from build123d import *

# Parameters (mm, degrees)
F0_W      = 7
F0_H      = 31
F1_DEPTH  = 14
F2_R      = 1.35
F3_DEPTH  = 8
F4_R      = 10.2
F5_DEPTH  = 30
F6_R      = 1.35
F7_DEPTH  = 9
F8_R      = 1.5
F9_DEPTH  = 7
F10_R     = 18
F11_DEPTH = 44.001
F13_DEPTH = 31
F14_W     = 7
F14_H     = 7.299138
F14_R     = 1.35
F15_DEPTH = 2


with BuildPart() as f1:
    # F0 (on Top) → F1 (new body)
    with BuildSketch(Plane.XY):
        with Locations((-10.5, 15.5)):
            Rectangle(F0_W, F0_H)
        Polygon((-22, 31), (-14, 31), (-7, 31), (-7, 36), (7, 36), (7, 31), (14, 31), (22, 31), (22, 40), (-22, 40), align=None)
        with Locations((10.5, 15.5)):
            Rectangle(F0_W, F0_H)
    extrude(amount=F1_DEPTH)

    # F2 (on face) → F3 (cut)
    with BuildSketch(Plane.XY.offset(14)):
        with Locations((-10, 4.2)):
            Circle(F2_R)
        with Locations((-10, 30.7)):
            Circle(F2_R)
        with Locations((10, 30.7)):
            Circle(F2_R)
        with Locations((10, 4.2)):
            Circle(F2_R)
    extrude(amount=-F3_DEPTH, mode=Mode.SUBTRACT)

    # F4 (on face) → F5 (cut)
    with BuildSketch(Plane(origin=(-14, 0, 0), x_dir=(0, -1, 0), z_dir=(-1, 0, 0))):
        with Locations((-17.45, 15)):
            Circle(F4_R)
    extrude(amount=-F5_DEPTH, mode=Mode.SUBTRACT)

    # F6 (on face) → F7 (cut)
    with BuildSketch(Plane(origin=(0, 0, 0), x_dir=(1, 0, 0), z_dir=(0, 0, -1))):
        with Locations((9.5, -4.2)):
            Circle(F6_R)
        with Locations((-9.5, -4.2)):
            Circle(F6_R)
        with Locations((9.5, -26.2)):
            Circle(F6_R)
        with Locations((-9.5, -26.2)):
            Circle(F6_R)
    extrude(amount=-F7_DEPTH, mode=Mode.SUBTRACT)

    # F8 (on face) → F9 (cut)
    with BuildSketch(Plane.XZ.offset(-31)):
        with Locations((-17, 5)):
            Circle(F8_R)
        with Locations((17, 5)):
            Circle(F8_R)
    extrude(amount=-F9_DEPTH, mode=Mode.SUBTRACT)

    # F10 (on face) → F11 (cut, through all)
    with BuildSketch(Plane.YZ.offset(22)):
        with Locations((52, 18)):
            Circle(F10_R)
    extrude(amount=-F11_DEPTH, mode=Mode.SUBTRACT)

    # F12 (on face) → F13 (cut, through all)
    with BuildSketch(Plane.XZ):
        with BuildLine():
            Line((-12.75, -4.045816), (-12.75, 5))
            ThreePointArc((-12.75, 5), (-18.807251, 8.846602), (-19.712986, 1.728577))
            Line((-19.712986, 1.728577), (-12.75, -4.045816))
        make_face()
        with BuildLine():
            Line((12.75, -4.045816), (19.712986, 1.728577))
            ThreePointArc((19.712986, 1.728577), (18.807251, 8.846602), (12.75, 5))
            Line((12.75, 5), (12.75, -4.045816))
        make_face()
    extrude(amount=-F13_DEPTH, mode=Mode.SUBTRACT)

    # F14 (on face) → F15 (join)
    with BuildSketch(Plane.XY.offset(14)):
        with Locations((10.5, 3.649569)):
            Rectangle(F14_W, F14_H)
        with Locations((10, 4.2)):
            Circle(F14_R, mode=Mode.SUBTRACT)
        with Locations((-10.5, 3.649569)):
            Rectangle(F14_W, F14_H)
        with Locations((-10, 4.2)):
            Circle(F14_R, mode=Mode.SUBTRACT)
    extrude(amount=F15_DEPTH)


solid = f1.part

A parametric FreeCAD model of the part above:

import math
import FreeCAD as App
import Part
import Sketcher
Q = App.Units.Quantity


def add_polygon(sketch, points):
    """Adds a closed chain of lines whose ends are joined by coincident constraints."""
    first, n = sketch.GeometryCount, len(points)
    for a, b in zip(points, points[1:] + points[:1]):
        sketch.addGeometry(Part.LineSegment(App.Vector(*a, 0), App.Vector(*b, 0)), False)
    for i in range(n):
        sketch.addConstraint(Sketcher.Constraint("Coincident", first + i, 2, first + (i + 1) % n, 1))

doc = App.newDocument("Part")
body = doc.addObject("PartDesign::Body", "Body")

# Sketch on XY plane
sketch1 = body.newObject("Sketcher::SketchObject", "Sketch")
sketch1.AttachmentSupport = (doc.getObject("XY_Plane"), [""])
sketch1.MapMode = "FlatFace"
add_polygon(sketch1, [(-14, 31), (-14, 0), (-7, 0), (-7, 36), (7, 36), (7, 0), (14, 0), (14, 31), (22, 31), (22, 40), (-22, 40), (-22, 31)])  # lines 0-11
sketch1.addConstraint([
    Sketcher.Constraint("Vertical", 0),
    Sketcher.Constraint("Horizontal", 1),
    Sketcher.Constraint("Vertical", 2),
    Sketcher.Constraint("Horizontal", 3),
    Sketcher.Constraint("Vertical", 4),
    Sketcher.Constraint("Horizontal", 5),
    Sketcher.Constraint("Vertical", 6),
    Sketcher.Constraint("Horizontal", 7),
    Sketcher.Constraint("Vertical", 8),
    Sketcher.Constraint("Horizontal", 9),
    Sketcher.Constraint("Vertical", 10),
    Sketcher.Constraint("Horizontal", 11),
    Sketcher.Constraint("Symmetric", 1, 2, 4, 2, -1, 1),
    Sketcher.Constraint("Symmetric", 0, 2, 5, 2, -2),
    Sketcher.Constraint("Symmetric", 7, 2, 10, 2, -2),
    Sketcher.Constraint("DistanceX", 1, 1, 1, 2, Q("7 mm")),
    Sketcher.Constraint("DistanceX", 3, 1, 3, 2, Q("14 mm")),
    Sketcher.Constraint("DistanceX", 7, 1, 7, 2, Q("8 mm")),
    Sketcher.Constraint("DistanceY", 0, 2, 0, 1, Q("31 mm")),
    Sketcher.Constraint("DistanceY", 2, 1, 2, 2, Q("36 mm")),
    Sketcher.Constraint("DistanceY", 8, 1, 8, 2, Q("9 mm")),
])
pad1 = body.newObject("PartDesign::Pad", "Pad")
pad1.Profile = sketch1
pad1.Length = 14

# Sketch on XY plane
sketch2 = body.newObject("Sketcher::SketchObject", "Sketch001")
sketch2.AttachmentSupport = (doc.getObject("XY_Plane"), [""])
sketch2.MapMode = "FlatFace"
sketch2.AttachmentOffset = App.Placement(App.Vector(0, 0, 14), App.Rotation())
sketch2.addGeometry([
    Part.Circle(App.Vector(-10, 4.2, 0), App.Vector(0, 0, 1), 1.4),
    Part.Circle(App.Vector(-10, 30.7, 0), App.Vector(0, 0, 1), 1.4),
    Part.Circle(App.Vector(10, 30.7, 0), App.Vector(0, 0, 1), 1.4),
    Part.Circle(App.Vector(10, 4.2, 0), App.Vector(0, 0, 1), 1.4),
], False)
sketch2.addConstraint([
    Sketcher.Constraint("Equal", 0, 1),
    Sketcher.Constraint("Equal", 1, 2),
    Sketcher.Constraint("Equal", 2, 3),
    Sketcher.Constraint("Symmetric", 1, 3, 2, 3, -2),
    Sketcher.Constraint("Symmetric", 0, 3, 3, 3, -2),
    Sketcher.Constraint("Vertical", 0, 3, 1, 3),
    Sketcher.Constraint("Diameter", 0, Q("2.7 mm")),
    Sketcher.Constraint("DistanceX", 0, 3, -1, 1, Q("10 mm")),
    Sketcher.Constraint("DistanceY", -1, 1, 0, 3, Q("4.2 mm")),
    Sketcher.Constraint("DistanceY", -1, 1, 1, 3, Q("30.7 mm")),
])
pocket1 = body.newObject("PartDesign::Pocket", "Pocket")
pocket1.Profile = sketch2
pocket1.Length = 8

# Sketch on YZ plane
sketch3 = body.newObject("Sketcher::SketchObject", "Sketch002")
sketch3.AttachmentSupport = (doc.getObject("YZ_Plane"), [""])
sketch3.MapMode = "FlatFace"
sketch3.AttachmentOffset = App.Placement(App.Vector(0, 0, -14), App.Rotation())
sketch3.addGeometry(Part.Circle(App.Vector(17, 15, 0), App.Vector(0, 0, 1), 10), False)
sketch3.addConstraint([
    Sketcher.Constraint("Diameter", 0, Q("20.4 mm")),
    Sketcher.Constraint("DistanceY", -1, 1, 0, 3, Q("15 mm")),
    Sketcher.Constraint("DistanceX", -1, 1, 0, 3, Q("17.45 mm")),
])
pocket2 = body.newObject("PartDesign::Pocket", "Pocket001")
pocket2.Profile = sketch3
pocket2.Length = 30
pocket2.Reversed = True

# Sketch on XY plane
sketch4 = body.newObject("Sketcher::SketchObject", "Sketch003")
sketch4.AttachmentSupport = (doc.getObject("XY_Plane"), [""])
sketch4.MapMode = "FlatFace"
sketch4.addGeometry([
    Part.Circle(App.Vector(9.5, 4.2, 0), App.Vector(0, 0, 1), 1.4),
    Part.Circle(App.Vector(-9.5, 4.2, 0), App.Vector(0, 0, 1), 1.4),
    Part.Circle(App.Vector(9.5, 26.2, 0), App.Vector(0, 0, 1), 1.4),
    Part.Circle(App.Vector(-9.5, 26.2, 0), App.Vector(0, 0, 1), 1.4),
], False)
sketch4.addConstraint([
    Sketcher.Constraint("Equal", 0, 1),
    Sketcher.Constraint("Equal", 1, 2),
    Sketcher.Constraint("Equal", 2, 3),
    Sketcher.Constraint("Symmetric", 0, 3, 1, 3, -2),
    Sketcher.Constraint("Symmetric", 2, 3, 3, 3, -2),
    Sketcher.Constraint("Vertical", 0, 3, 2, 3),
    Sketcher.Constraint("Diameter", 0, Q("2.7 mm")),
    Sketcher.Constraint("DistanceX", 1, 3, 0, 3, Q("19 mm")),
    Sketcher.Constraint("DistanceY", 0, 3, 2, 3, Q("22 mm")),
    Sketcher.Constraint("DistanceY", -1, 1, 0, 3, Q("4.2 mm")),
])
pocket3 = body.newObject("PartDesign::Pocket", "Pocket002")
pocket3.Profile = sketch4
pocket3.Length = 9
pocket3.Reversed = True

# Sketch on XZ plane
sketch5 = body.newObject("Sketcher::SketchObject", "Sketch004")
sketch5.AttachmentSupport = (doc.getObject("XZ_Plane"), [""])
sketch5.MapMode = "FlatFace"
sketch5.AttachmentOffset = App.Placement(App.Vector(0, 0, -31), App.Rotation())
sketch5.addGeometry([
    Part.Circle(App.Vector(-17, 5, 0), App.Vector(0, 0, 1), 1.5),
    Part.Circle(App.Vector(17, 5, 0), App.Vector(0, 0, 1), 1.5),
], False)
sketch5.addConstraint([
    Sketcher.Constraint("Equal", 0, 1),
    Sketcher.Constraint("Symmetric", 0, 3, 1, 3, -2),
    Sketcher.Constraint("Diameter", 0, Q("3 mm")),
    Sketcher.Constraint("DistanceX", 0, 3, -1, 1, Q("17 mm")),
    Sketcher.Constraint("DistanceY", -1, 1, 0, 3, Q("5 mm")),
])
pocket4 = body.newObject("PartDesign::Pocket", "Pocket003")
pocket4.Profile = sketch5
pocket4.Length = 7

# Sketch on YZ plane
sketch6 = body.newObject("Sketcher::SketchObject", "Sketch005")
sketch6.AttachmentSupport = (doc.getObject("YZ_Plane"), [""])
sketch6.MapMode = "FlatFace"
sketch6.AttachmentOffset = App.Placement(App.Vector(0, 0, 22), App.Rotation())
sketch6.addGeometry(Part.Circle(App.Vector(52, 18, 0), App.Vector(0, 0, 1), 18), False)
sketch6.addConstraint([
    Sketcher.Constraint("Diameter", 0, Q("36 mm")),
    Sketcher.Constraint("DistanceX", -1, 1, 0, 3, Q("52 mm")),
    Sketcher.Constraint("DistanceY", -1, 1, 0, 3, Q("18 mm")),
])
pocket5 = body.newObject("PartDesign::Pocket", "Pocket004")
pocket5.Profile = sketch6
pocket5.Type = "ThroughAll"

# Sketch on XZ plane
sketch7 = body.newObject("Sketcher::SketchObject", "Sketch006")
sketch7.AttachmentSupport = (doc.getObject("XZ_Plane"), [""])
sketch7.MapMode = "FlatFace"
sketch7.addGeometry([
    Part.LineSegment(App.Vector(-12.8, -4, 0), App.Vector(-12.8, 5, 0)),  # 0
    Part.ArcOfCircle(Part.Circle(App.Vector(-17, 5, 0), App.Vector(0, 0, 1), 4.3), math.radians(0), math.radians(230)),  # 1
    Part.LineSegment(App.Vector(-19.7, 1.7, 0), App.Vector(-12.8, -4, 0)),  # 2
    Part.LineSegment(App.Vector(12.8, -4, 0), App.Vector(19.7, 1.7, 0)),  # 3
    Part.ArcOfCircle(Part.Circle(App.Vector(17, 5, 0), App.Vector(0, 0, 1), 4.3), math.radians(-50), math.radians(180)),  # 4
    Part.LineSegment(App.Vector(12.8, 5, 0), App.Vector(12.8, -4, 0)),  # 5
], False)
sketch7.addConstraint([
    Sketcher.Constraint("Tangent", 0, 2, 1, 1),
    Sketcher.Constraint("Tangent", 1, 2, 2, 1),
    Sketcher.Constraint("Coincident", 2, 2, 0, 1),
    Sketcher.Constraint("Tangent", 3, 2, 4, 1),
    Sketcher.Constraint("Tangent", 4, 2, 5, 1),
    Sketcher.Constraint("Coincident", 5, 2, 3, 1),
    Sketcher.Constraint("Vertical", 0),
    Sketcher.Constraint("Vertical", 5),
    Sketcher.Constraint("Equal", 1, 4),
    Sketcher.Constraint("Symmetric", 1, 3, 4, 3, -2),
    Sketcher.Constraint("Horizontal", 1, 2, 3, 2),
    Sketcher.Constraint("Radius", 1, Q("4.25 mm")),
    Sketcher.Constraint("DistanceX", 1, 3, -1, 1, Q("17 mm")),
    Sketcher.Constraint("DistanceY", -1, 1, 1, 3, Q("5 mm")),
    Sketcher.Constraint("DistanceY", 0, 1, 0, 2, Q("9.045816 mm")),
])
pocket6 = body.newObject("PartDesign::Pocket", "Pocket005")
pocket6.Profile = sketch7
pocket6.Length = 31

# Sketch on XY plane
sketch8 = body.newObject("Sketcher::SketchObject", "Sketch007")
sketch8.AttachmentSupport = (doc.getObject("XY_Plane"), [""])
sketch8.MapMode = "FlatFace"
sketch8.AttachmentOffset = App.Placement(App.Vector(0, 0, 14), App.Rotation())
add_polygon(sketch8, [(7, 7.3), (7, 0), (14, 0), (14, 7.3)])  # lines 0-3
sketch8.addGeometry(Part.Circle(App.Vector(10, 4.2, 0), App.Vector(0, 0, 1), 1.4), False)  # 4
add_polygon(sketch8, [(-14, 7.3), (-14, 0), (-7, 0), (-7, 7.3)])  # lines 5-8
sketch8.addGeometry(Part.Circle(App.Vector(-10, 4.2, 0), App.Vector(0, 0, 1), 1.4), False)  # 9
sketch8.addConstraint([
    Sketcher.Constraint("Vertical", 0),
    Sketcher.Constraint("Horizontal", 1),
    Sketcher.Constraint("Vertical", 2),
    Sketcher.Constraint("Horizontal", 3),
    Sketcher.Constraint("Vertical", 5),
    Sketcher.Constraint("Horizontal", 6),
    Sketcher.Constraint("Vertical", 7),
    Sketcher.Constraint("Horizontal", 8),
    Sketcher.Constraint("Equal", 4, 9),
    Sketcher.Constraint("Symmetric", 1, 2, 5, 2, -1, 1),
    Sketcher.Constraint("Symmetric", 4, 3, 9, 3, -2),
    Sketcher.Constraint("Symmetric", 0, 2, 6, 2, -2),
    Sketcher.Constraint("Horizontal", 3, 2, 7, 2),
    Sketcher.Constraint("Diameter", 4, Q("2.7 mm")),
    Sketcher.Constraint("DistanceX", 1, 1, 1, 2, Q("7 mm")),
    Sketcher.Constraint("DistanceX", -1, 1, 4, 3, Q("10 mm")),
    Sketcher.Constraint("DistanceX", -1, 1, 0, 2, Q("7 mm")),
    Sketcher.Constraint("DistanceY", -1, 1, 4, 3, Q("4.2 mm")),
    Sketcher.Constraint("DistanceY", 0, 2, 0, 1, Q("7.299138 mm")),
])
pad2 = body.newObject("PartDesign::Pad", "Pad001")
pad2.Profile = sketch8
pad2.Length = 2

doc.recompute()
